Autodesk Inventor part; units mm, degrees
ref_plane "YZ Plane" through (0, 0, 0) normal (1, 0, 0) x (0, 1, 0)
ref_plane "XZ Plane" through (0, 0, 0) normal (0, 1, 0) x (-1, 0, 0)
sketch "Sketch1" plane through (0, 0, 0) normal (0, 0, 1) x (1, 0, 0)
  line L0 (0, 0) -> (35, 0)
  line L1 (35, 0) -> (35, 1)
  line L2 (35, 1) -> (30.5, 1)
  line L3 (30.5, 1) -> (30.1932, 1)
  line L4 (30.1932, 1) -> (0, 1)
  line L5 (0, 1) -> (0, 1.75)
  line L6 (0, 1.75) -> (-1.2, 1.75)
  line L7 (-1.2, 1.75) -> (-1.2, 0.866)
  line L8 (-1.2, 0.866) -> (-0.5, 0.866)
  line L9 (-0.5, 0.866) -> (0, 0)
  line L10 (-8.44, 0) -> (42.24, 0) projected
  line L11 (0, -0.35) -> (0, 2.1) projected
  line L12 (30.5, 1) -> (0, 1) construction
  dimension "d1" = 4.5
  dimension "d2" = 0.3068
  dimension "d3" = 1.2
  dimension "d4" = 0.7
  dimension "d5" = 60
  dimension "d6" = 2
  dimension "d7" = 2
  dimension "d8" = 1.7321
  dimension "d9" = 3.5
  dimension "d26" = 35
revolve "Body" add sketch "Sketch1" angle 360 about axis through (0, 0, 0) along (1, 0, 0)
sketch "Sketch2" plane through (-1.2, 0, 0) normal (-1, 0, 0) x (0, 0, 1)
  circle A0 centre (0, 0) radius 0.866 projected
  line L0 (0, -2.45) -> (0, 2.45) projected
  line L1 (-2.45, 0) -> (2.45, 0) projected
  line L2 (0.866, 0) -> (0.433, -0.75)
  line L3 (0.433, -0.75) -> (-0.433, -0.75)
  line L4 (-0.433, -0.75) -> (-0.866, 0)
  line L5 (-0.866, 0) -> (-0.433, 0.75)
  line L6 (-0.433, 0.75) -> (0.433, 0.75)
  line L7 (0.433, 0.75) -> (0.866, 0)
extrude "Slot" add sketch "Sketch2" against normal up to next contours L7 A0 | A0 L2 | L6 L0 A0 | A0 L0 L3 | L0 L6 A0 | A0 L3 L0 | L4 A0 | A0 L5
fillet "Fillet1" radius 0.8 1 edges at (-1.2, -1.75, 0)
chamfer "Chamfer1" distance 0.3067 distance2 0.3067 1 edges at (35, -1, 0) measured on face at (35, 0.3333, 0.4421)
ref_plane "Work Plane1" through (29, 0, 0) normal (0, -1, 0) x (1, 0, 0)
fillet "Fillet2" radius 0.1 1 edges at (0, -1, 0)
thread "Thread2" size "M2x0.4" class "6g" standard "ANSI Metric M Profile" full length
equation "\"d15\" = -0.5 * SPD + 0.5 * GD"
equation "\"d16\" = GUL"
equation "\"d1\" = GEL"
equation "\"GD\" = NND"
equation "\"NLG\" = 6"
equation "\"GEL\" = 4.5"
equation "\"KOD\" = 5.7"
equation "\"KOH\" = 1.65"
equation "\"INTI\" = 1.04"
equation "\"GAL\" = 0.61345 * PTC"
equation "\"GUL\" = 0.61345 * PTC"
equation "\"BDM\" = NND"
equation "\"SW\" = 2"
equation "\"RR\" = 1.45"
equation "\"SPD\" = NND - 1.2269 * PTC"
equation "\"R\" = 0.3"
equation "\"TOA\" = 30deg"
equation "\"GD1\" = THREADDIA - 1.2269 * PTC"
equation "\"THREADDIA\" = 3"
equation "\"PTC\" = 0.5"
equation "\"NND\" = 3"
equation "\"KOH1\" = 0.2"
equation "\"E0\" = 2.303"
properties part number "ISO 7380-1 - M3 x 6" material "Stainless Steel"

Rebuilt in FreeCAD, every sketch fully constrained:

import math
import FreeCAD as App
import Part
import Sketcher
Q = App.Units.Quantity


def edges_at(feature, points):
    """Names of the edges that pass closest to the given points."""
    edges = feature.Shape.Edges
    near = lambda p: min(range(len(edges)), key=lambda i: edges[i].distToShape(Part.Vertex(*p))[0])
    return sorted({f"Edge{near(p) + 1}" for p in points})


def add_polygon(sketch, points):
    """Adds a closed chain of lines whose ends are joined by coincident constraints."""
    first, n = sketch.GeometryCount, len(points)
    for a, b in zip(points, points[1:] + points[:1]):
        sketch.addGeometry(Part.LineSegment(App.Vector(*a, 0), App.Vector(*b, 0)), False)
    for i in range(n):
        sketch.addConstraint(Sketcher.Constraint("Coincident", first + i, 2, first + (i + 1) % n, 1))

doc = App.newDocument("Part")
body = doc.addObject("PartDesign::Body", "Body")

# Sketch on XY plane
sketch1 = body.newObject("Sketcher::SketchObject", "Sketch")
sketch1.AttachmentSupport = (doc.getObject("XY_Plane"), [""])
sketch1.MapMode = "FlatFace"
add_polygon(sketch1, [(0, 1), (0, 1.8), (-1.2, 1.8), (-1.2, 0.9), (-0.5, 0.9), (0, 0), (35, 0), (35, 1)])  # lines 0-7
sketch1.addConstraint(Sketcher.Constraint("Vertical", 0))
sketch1.addConstraint(Sketcher.Constraint("Horizontal", 1))
sketch1.addConstraint(Sketcher.Constraint("Vertical", 2))
sketch1.addConstraint(Sketcher.Constraint("Horizontal", 3))
sketch1.addConstraint(Sketcher.Constraint("Horizontal", 5))
sketch1.addConstraint(Sketcher.Constraint("Vertical", 6))
sketch1.addConstraint(Sketcher.Constraint("Horizontal", 7))
sketch1.addConstraint(Sketcher.Constraint("Coincident", 4, 2, -1, 1))
sketch1.addConstraint(Sketcher.Constraint("PointOnObject", 0, 2, -2))
sketch1.addConstraint(Sketcher.Constraint("DistanceX", 5, 1, 5, 2, 35.0))
sketch1.addConstraint(Sketcher.Constraint("DistanceX", 1, 2, 1, 1, 1.2))
sketch1.addConstraint(Sketcher.Constraint("DistanceX", 3, 1, 3, 2, 0.7))
sketch1.addConstraint(Sketcher.Constraint("DistanceY", 6, 1, 6, 2, 1.0))
sketch1.addConstraint(Sketcher.Constraint("Angle", 4, Q("-59.9993 deg")))
sketch1.addConstraint(Sketcher.Constraint("DistanceY", 0, 1, 0, 2, 0.75))
revolution = body.newObject("PartDesign::Revolution", "Revolution")
revolution.Profile = sketch1
revolution.ReferenceAxis = (sketch1, ["H_Axis"])
revolution.Angle = 360

# Sketch on YZ plane
sketch2 = body.newObject("Sketcher::SketchObject", "Sketch001")
sketch2.AttachmentSupport = (doc.getObject("YZ_Plane"), [""])
sketch2.MapMode = "FlatFace"
sketch2.AttachmentOffset = App.Placement(App.Vector(0, 0, -1.2), App.Rotation())
sketch2.addGeometry(Part.LineSegment(App.Vector(0.8, 0.4, 0), App.Vector(0, 0.9, 0)), False)
sketch2.addGeometry(Part.ArcOfCircle(Part.Circle(App.Vector(0, 0, 0), App.Vector(0, 0, 1), 0.9), math.radians(30), math.radians(90)), False)
sketch2.addGeometry(Part.ArcOfCircle(Part.Circle(App.Vector(0, 0, 0), App.Vector(0, 0, 1), 0.9), math.radians(90), math.radians(150)), False)
sketch2.addGeometry(Part.LineSegment(App.Vector(0, 0.9, 0), App.Vector(-0.8, 0.4, 0)), False)
sketch2.addGeometry(Part.ArcOfCircle(Part.Circle(App.Vector(0, 0, 0), App.Vector(0, 0, 1), 0.9), math.radians(-30), math.radians(30)), False)
sketch2.addGeometry(Part.LineSegment(App.Vector(0.8, 0.4, 0), App.Vector(0.8, -0.4, 0)), False)
sketch2.addGeometry(Part.LineSegment(App.Vector(-0.8, 0.4, 0), App.Vector(-0.8, -0.4, 0)), False)
sketch2.addGeometry(Part.ArcOfCircle(Part.Circle(App.Vector(0, 0, 0), App.Vector(0, 0, 1), 0.9), math.radians(150), math.radians(210)), False)
sketch2.addGeometry(Part.LineSegment(App.Vector(-0.8, -0.4, 0), App.Vector(0, -0.9, 0)), False)
sketch2.addGeometry(Part.ArcOfCircle(Part.Circle(App.Vector(0, 0, 0), App.Vector(0, 0, 1), 0.9), math.radians(-150), math.radians(-90)), False)
sketch2.addGeometry(Part.ArcOfCircle(Part.Circle(App.Vector(0, 0, 0), App.Vector(0, 0, 1), 0.9), math.radians(-90), math.radians(-30)), False)
sketch2.addGeometry(Part.LineSegment(App.Vector(0, -0.9, 0), App.Vector(0.8, -0.4, 0)), False)
sketch2.addConstraint(Sketcher.Constraint("Coincident", 0, 1, 1, 1))
sketch2.addConstraint(Sketcher.Constraint("Coincident", 1, 2, 0, 2))
sketch2.addConstraint(Sketcher.Constraint("Coincident", 2, 1, 3, 1))
sketch2.addConstraint(Sketcher.Constraint("Coincident", 3, 2, 2, 2))
sketch2.addConstraint(Sketcher.Constraint("Coincident", 4, 1, 5, 2))
sketch2.addConstraint(Sketcher.Constraint("Coincident", 5, 1, 4, 2))
sketch2.addConstraint(Sketcher.Constraint("Coincident", 6, 1, 7, 1))
sketch2.addConstraint(Sketcher.Constraint("Coincident", 7, 2, 6, 2))
sketch2.addConstraint(Sketcher.Constraint("Coincident", 8, 1, 9, 1))
sketch2.addConstraint(Sketcher.Constraint("Coincident", 9, 2, 8, 2))
sketch2.addConstraint(Sketcher.Constraint("Coincident", 10, 1, 11, 1))
sketch2.addConstraint(Sketcher.Constraint("Coincident", 11, 2, 10, 2))
sketch2.addConstraint(Sketcher.Constraint("Vertical", 5))
sketch2.addConstraint(Sketcher.Constraint("Vertical", 6))
sketch2.addConstraint(Sketcher.Constraint("Coincident", 1, 3, -1, 1))
sketch2.addConstraint(Sketcher.Constraint("Coincident", 2, 3, -1, 1))
sketch2.addConstraint(Sketcher.Constraint("Coincident", 4, 3, -1, 1))
sketch2.addConstraint(Sketcher.Constraint("Coincident", 7, 3, -1, 1))
sketch2.addConstraint(Sketcher.Constraint("Coincident", 9, 3, -1, 1))
sketch2.addConstraint(Sketcher.Constraint("Coincident", 10, 3, -1, 1))
sketch2.addConstraint(Sketcher.Constraint("Coincident", 2, 1, 1, 2))
sketch2.addConstraint(Sketcher.Constraint("Coincident", 5, 1, 0, 1))
sketch2.addConstraint(Sketcher.Constraint("Coincident", 6, 1, 3, 2))
sketch2.addConstraint(Sketcher.Constraint("Coincident", 8, 1, 7, 2))
sketch2.addConstraint(Sketcher.Constraint("Coincident", 10, 1, 9, 2))
sketch2.addConstraint(Sketcher.Constraint("PointOnObject", 1, 2, -2))
sketch2.addConstraint(Sketcher.Constraint("PointOnObject", 9, 2, -2))
sketch2.addConstraint(Sketcher.Constraint("Parallel", 0, 8))
sketch2.addConstraint(Sketcher.Constraint("Parallel", 3, 11))
sketch2.addConstraint(Sketcher.Constraint("Angle", 0, Q("150.0007 deg")))
sketch2.addConstraint(Sketcher.Constraint("Radius", 1, 0.866))
pad1 = body.newObject("PartDesign::Pad", "Pad")
pad1.Profile = sketch2
pad1.Type = "UpToFirst"
doc.recompute()

fillet = body.newObject("PartDesign::Fillet", "Fillet")
fillet.Base = (pad1, edges_at(pad1, [(-1.2, -1.75, 0)]))
fillet.Radius = 0.8
doc.recompute()

chamfer = body.newObject("PartDesign::Chamfer", "Chamfer")
chamfer.Base = (fillet, edges_at(fillet, [(35, -1, 0)]))
chamfer.ChamferType = "Two distances"
chamfer.Size = 0.3067
chamfer.Size2 = 0.3067
doc.recompute()

fillet2 = body.newObject("PartDesign::Fillet", "Fillet001")
fillet2.Base = (chamfer, edges_at(chamfer, [(0, -1, 0)]))
fillet2.Radius = 0.1

doc.recompute()
